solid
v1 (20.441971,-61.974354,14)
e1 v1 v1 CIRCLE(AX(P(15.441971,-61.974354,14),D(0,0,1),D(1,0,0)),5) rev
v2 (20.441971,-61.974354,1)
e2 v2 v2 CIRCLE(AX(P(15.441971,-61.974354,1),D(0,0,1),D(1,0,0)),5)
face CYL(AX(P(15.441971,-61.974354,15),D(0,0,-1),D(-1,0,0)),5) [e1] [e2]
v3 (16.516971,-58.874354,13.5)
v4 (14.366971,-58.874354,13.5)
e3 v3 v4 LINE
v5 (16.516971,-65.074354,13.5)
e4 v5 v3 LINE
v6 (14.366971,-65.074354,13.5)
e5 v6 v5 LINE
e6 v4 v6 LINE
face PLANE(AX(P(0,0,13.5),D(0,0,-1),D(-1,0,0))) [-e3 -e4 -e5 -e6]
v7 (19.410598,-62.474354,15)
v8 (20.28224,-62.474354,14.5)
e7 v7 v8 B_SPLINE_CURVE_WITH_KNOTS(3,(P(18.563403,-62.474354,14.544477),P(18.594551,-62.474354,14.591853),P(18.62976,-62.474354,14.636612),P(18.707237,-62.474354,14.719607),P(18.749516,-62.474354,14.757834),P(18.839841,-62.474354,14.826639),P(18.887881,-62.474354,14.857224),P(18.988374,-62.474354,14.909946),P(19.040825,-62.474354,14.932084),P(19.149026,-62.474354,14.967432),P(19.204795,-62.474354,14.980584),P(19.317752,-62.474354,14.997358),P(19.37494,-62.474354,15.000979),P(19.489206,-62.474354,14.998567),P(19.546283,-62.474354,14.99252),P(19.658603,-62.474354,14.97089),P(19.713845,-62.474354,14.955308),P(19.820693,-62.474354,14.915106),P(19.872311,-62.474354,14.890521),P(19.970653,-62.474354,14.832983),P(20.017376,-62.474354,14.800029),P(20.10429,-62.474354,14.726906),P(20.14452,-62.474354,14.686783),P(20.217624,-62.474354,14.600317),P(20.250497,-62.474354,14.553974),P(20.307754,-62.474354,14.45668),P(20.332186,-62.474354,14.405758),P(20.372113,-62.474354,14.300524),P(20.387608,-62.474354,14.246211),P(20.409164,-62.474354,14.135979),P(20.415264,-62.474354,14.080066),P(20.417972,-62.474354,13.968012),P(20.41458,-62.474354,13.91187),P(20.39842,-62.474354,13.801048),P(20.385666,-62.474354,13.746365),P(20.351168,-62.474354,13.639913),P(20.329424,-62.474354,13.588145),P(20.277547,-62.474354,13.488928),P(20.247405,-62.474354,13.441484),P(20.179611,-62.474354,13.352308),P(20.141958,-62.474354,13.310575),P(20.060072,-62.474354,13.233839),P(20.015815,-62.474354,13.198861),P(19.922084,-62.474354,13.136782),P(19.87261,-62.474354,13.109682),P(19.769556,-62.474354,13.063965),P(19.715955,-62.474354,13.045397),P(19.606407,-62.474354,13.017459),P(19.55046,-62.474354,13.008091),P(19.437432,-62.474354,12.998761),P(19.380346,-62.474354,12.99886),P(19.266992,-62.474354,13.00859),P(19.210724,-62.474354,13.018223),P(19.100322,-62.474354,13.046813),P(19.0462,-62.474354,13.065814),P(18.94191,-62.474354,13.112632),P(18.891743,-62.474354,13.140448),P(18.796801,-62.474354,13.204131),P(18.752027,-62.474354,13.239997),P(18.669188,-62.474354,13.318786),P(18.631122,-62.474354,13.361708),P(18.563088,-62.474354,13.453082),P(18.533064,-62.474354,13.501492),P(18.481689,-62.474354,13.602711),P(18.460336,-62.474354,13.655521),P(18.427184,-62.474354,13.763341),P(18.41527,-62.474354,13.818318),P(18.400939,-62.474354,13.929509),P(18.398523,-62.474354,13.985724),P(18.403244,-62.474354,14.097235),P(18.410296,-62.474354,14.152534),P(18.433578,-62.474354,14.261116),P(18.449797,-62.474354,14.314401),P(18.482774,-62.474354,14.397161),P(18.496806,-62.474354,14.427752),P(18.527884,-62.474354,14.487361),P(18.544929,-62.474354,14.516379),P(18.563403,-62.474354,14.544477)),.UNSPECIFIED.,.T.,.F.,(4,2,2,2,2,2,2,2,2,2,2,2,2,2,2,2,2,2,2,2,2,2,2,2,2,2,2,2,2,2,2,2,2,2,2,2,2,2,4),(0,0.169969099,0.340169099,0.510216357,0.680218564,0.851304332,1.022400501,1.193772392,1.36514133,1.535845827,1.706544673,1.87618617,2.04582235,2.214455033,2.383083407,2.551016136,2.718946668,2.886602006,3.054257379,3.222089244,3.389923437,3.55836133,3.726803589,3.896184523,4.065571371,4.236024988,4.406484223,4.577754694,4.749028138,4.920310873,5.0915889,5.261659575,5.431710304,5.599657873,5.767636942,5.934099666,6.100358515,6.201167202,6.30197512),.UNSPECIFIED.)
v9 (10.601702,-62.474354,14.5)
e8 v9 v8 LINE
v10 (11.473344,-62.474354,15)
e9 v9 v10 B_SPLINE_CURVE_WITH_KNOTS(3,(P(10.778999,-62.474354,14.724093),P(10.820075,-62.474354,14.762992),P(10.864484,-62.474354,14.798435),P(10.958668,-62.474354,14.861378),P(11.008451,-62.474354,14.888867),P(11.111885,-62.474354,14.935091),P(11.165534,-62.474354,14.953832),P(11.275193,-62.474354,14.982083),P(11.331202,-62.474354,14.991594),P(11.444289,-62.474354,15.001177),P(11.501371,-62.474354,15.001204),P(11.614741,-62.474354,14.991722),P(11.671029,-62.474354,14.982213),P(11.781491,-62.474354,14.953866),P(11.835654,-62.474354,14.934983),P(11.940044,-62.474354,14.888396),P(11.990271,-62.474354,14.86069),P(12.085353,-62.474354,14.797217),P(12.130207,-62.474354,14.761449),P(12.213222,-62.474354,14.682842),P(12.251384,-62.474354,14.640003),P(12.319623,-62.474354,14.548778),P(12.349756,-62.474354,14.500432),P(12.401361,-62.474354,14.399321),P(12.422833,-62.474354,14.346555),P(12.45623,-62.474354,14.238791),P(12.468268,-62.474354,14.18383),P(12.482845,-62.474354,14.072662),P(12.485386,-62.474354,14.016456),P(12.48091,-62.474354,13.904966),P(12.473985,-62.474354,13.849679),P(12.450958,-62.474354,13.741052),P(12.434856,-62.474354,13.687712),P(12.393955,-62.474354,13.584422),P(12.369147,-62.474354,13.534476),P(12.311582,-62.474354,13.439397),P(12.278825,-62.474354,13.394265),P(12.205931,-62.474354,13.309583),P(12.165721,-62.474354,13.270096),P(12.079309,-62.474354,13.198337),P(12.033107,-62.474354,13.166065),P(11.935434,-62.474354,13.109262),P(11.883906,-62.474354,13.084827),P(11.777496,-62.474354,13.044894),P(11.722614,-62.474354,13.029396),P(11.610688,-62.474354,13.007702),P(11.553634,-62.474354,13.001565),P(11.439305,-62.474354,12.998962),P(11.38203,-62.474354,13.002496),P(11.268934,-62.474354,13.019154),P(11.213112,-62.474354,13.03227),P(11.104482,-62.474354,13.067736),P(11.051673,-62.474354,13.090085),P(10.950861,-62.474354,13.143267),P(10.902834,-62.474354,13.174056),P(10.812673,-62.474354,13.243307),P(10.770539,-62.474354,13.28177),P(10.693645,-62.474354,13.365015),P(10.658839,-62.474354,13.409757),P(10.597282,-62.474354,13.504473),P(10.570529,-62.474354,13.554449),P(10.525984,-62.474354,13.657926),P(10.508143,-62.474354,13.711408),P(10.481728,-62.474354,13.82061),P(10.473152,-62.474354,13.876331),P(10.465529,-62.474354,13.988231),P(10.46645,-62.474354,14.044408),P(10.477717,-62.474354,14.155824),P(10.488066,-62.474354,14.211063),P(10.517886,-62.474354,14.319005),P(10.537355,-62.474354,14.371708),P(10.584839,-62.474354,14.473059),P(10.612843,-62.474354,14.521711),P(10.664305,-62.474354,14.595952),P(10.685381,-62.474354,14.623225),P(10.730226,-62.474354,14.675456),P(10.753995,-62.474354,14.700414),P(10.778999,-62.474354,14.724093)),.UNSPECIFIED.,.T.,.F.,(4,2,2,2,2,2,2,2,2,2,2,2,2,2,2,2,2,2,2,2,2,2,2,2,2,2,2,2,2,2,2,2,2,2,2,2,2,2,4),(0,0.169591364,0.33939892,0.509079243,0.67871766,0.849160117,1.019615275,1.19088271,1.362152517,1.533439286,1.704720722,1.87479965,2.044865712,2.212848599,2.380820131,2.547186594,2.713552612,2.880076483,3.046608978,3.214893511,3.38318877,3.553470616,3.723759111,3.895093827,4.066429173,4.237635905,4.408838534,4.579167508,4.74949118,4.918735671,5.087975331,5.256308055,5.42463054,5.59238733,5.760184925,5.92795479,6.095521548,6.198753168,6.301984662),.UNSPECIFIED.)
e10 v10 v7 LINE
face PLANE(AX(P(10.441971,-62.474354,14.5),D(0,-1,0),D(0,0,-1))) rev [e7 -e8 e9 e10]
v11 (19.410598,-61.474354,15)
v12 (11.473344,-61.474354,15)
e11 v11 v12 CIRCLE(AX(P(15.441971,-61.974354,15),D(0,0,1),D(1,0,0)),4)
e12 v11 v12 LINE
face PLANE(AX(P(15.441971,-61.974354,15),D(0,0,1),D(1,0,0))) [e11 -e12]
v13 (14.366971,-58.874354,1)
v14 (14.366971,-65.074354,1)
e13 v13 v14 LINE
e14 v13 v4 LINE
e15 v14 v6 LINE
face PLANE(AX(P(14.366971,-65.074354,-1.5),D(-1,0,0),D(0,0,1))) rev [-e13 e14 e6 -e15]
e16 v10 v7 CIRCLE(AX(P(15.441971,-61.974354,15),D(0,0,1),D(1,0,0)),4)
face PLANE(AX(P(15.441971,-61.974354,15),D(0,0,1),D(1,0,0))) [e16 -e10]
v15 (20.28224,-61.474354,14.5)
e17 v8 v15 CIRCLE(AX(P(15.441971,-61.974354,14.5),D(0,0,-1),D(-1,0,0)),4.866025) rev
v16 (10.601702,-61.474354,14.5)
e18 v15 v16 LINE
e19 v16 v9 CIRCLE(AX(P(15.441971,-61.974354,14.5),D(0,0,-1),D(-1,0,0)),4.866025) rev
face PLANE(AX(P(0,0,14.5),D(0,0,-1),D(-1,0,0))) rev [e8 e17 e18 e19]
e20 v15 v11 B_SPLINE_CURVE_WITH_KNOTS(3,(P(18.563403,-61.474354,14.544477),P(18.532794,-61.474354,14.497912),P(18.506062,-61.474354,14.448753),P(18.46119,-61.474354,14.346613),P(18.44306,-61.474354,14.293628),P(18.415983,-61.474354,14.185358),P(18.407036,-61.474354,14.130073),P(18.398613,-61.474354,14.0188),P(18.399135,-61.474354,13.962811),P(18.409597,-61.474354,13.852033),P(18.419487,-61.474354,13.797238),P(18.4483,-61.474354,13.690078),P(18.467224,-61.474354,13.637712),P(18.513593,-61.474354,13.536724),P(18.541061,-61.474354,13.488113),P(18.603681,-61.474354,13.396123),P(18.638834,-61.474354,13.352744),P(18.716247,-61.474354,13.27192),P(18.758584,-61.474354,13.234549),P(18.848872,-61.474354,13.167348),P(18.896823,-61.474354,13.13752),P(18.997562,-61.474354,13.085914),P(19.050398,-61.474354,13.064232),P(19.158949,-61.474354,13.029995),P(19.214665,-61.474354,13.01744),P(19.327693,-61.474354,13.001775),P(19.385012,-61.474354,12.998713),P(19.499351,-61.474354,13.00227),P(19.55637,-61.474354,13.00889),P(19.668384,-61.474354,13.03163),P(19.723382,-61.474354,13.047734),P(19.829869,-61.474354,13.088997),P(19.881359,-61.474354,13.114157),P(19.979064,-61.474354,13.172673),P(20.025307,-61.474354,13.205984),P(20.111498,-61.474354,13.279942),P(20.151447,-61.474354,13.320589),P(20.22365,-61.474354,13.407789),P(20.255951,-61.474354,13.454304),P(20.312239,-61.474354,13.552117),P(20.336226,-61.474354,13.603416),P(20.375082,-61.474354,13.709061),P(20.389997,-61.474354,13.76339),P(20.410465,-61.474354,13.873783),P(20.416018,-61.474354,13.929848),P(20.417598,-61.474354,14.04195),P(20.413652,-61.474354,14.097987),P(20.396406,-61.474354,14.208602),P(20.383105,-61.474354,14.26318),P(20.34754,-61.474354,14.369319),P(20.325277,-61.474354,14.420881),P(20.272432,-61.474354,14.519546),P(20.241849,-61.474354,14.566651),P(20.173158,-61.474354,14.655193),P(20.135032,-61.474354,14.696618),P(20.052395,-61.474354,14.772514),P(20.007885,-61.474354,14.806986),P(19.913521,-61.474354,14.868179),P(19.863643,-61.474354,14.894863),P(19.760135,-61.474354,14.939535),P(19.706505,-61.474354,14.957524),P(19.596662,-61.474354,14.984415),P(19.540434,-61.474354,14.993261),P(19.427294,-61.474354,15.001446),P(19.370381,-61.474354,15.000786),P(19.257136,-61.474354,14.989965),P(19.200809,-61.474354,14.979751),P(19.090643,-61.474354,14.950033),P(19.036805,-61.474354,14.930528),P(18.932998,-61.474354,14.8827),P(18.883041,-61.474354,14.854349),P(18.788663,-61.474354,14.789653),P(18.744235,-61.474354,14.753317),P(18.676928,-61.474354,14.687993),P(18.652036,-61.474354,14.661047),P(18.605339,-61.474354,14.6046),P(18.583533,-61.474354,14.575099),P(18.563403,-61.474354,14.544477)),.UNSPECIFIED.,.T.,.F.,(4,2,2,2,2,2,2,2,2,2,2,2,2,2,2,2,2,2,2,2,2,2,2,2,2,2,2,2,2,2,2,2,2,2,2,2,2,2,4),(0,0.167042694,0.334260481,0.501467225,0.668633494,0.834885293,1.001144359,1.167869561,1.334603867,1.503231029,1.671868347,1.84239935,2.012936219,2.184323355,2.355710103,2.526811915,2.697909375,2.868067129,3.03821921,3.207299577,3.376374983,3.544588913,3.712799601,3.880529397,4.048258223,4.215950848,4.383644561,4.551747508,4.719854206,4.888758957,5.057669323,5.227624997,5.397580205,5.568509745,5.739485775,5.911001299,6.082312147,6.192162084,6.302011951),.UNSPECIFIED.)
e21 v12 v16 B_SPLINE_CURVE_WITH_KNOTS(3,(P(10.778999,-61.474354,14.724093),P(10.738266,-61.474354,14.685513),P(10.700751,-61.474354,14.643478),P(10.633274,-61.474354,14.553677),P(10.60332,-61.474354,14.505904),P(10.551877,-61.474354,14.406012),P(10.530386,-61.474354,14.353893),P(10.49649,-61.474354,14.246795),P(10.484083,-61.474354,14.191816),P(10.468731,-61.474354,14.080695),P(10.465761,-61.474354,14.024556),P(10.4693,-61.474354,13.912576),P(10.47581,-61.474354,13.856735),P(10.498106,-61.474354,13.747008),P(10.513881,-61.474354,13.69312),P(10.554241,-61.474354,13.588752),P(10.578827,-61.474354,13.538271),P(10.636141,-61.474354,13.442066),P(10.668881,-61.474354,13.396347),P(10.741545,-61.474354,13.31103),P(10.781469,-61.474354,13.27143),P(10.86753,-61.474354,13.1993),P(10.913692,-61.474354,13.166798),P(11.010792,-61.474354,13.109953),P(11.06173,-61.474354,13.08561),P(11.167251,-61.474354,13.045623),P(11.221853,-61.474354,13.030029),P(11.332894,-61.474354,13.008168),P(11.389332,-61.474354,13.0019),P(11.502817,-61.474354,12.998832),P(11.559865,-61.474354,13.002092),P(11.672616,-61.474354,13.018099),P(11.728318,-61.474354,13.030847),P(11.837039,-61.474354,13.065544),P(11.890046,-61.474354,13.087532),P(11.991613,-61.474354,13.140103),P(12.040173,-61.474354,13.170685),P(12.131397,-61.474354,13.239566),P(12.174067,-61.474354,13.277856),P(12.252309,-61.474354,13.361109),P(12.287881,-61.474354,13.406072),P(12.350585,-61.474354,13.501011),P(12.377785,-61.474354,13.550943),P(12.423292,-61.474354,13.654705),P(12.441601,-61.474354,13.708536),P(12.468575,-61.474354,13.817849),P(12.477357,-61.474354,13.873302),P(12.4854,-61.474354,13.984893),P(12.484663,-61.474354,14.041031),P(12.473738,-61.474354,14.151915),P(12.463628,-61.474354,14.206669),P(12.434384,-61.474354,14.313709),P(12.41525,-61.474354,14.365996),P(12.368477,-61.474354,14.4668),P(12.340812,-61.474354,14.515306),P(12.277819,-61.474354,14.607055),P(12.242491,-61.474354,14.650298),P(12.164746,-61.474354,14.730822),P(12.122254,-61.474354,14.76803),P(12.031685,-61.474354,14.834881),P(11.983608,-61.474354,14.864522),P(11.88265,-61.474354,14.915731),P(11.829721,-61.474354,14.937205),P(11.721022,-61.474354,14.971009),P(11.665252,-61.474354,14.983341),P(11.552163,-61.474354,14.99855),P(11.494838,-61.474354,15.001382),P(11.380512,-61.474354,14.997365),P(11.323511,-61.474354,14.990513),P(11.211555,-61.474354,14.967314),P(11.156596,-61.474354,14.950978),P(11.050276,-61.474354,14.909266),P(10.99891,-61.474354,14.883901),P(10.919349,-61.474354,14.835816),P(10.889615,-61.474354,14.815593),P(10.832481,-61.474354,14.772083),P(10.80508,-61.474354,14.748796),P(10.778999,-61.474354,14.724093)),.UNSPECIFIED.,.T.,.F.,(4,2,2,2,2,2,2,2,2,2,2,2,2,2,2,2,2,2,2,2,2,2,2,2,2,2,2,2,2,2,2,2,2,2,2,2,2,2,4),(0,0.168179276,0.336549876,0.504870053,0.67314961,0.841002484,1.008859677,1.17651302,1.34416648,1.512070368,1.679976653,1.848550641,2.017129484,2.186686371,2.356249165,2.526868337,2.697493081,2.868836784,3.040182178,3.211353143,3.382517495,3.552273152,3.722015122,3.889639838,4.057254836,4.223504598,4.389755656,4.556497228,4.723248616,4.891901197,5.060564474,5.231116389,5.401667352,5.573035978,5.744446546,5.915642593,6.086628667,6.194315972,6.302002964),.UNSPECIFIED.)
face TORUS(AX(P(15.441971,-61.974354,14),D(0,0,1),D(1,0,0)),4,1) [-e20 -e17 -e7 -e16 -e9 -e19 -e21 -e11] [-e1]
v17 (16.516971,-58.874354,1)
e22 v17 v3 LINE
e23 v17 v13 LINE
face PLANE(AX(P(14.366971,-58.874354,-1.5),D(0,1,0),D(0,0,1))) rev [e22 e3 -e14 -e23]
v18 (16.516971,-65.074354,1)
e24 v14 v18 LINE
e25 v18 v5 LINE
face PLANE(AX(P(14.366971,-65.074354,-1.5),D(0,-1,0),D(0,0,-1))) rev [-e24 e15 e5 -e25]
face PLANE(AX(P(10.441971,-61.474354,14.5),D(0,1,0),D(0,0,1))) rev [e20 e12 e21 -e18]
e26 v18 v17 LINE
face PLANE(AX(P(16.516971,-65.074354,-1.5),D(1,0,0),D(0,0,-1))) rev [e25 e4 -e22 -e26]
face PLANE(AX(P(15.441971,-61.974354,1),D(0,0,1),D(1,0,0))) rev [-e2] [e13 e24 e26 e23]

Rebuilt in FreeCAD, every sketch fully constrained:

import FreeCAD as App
import Part
import Sketcher

V = App.Vector


def edges_at(feature, points):
    """Names of the edges that pass closest to the given points."""
    edges = feature.Shape.Edges
    near = lambda p: min(range(len(edges)), key=lambda i: edges[i].distToShape(Part.Vertex(*p))[0])
    return sorted({f"Edge{near(p) + 1}" for p in points})


def add_polygon(sketch, points):
    """Adds a closed chain of lines whose ends are joined by coincident constraints."""
    first, n = sketch.GeometryCount, len(points)
    for a, b in zip(points, points[1:] + points[:1]):
        sketch.addGeometry(Part.LineSegment(App.Vector(*a, 0), App.Vector(*b, 0)), False)
    for i in range(n):
        sketch.addConstraint(Sketcher.Constraint("Coincident", first + i, 2, first + (i + 1) % n, 1))

doc = App.newDocument("Part")
params = doc.addObject("Spreadsheet::Sheet", "Params")
for row, (alias, value) in enumerate([
    ("sketch1_diameter", "10 mm"),
    ("pad1_length", "14 mm"),
    ("sketch2_height", "6.2 mm"),
    ("sketch2_width", "2.15 mm"),
    ("pocket1_length", "15 mm"),
    ("fillet_radius", "1 mm"),
    ("sketch3_width", "10 mm"),
    ("sketch3_height", "1 mm"),
    ("pocket2_length", "0.5 mm"),
], start=1):
    params.set(f"A{row}", alias)
    params.set(f"B{row}", "=" + value)
    params.setAlias(f"B{row}", alias)

body = doc.addObject("PartDesign::Body", "Body")

sketch1 = doc.addObject("Sketcher::SketchObject", "Sketch")
body.addObject(sketch1)
sketch1.AttachmentSupport = (doc.XY_Plane, [""])
sketch1.MapMode = "FlatFace"
sketch1.AttachmentOffset = App.Placement(V(0, 0, 1), App.Rotation())
sketch1.addGeometry(Part.Circle(V(15, -62, 0), V(0, 0, 1), 5), False)
sketch1.addConstraint([
    Sketcher.Constraint("Diameter", 0, 10.0),
    Sketcher.Constraint("DistanceX", -1, 1, 0, 3, 15.441971),
    Sketcher.Constraint("DistanceY", 0, 3, -1, 1, 61.974354),
])
sketch1.setExpression("Constraints[0]", "Params.sketch1_diameter")
pad1 = doc.addObject("PartDesign::Pad", "Pad")
body.addObject(pad1)
pad1.Profile = sketch1
pad1.setExpression("Length", "Params.pad1_length")

sketch2 = doc.addObject("Sketcher::SketchObject", "Sketch001")
body.addObject(sketch2)
sketch2.AttachmentSupport = (doc.XY_Plane, [""])
sketch2.MapMode = "FlatFace"
sketch2.AttachmentOffset = App.Placement(V(0, 0, 13.5), App.Rotation())
add_polygon(sketch2, [(14.4, -58.9), (14.4, -65.1), (16.5, -65.1), (16.5, -58.9)])
sketch2.addConstraint([
    Sketcher.Constraint("Vertical", 0),
    Sketcher.Constraint("Horizontal", 1),
    Sketcher.Constraint("Vertical", 2),
    Sketcher.Constraint("Horizontal", 3),
    Sketcher.Constraint("DistanceY", 0, 2, 0, 1, 6.2),
    Sketcher.Constraint("DistanceX", 1, 1, 1, 2, 2.15),
    Sketcher.Constraint("DistanceX", -1, 1, 0, 2, 14.366971),
    Sketcher.Constraint("DistanceY", 0, 2, -1, 1, 65.074354),
])
sketch2.setExpression("Constraints[8]", "Params.sketch2_height")
sketch2.setExpression("Constraints[9]", "Params.sketch2_width")
pocket1 = doc.addObject("PartDesign::Pocket", "Pocket")
body.addObject(pocket1)
pocket1.Profile = sketch2
pocket1.setExpression("Length", "Params.pocket1_length")
doc.recompute()

fillet = doc.addObject("PartDesign::Fillet", "Fillet")
body.addObject(fillet)
fillet.Base = (pocket1, edges_at(pocket1, [(10.442, -61.974, 15)]))
fillet.setExpression("Radius", "Params.fillet_radius")

sketch3 = doc.addObject("Sketcher::SketchObject", "Sketch002")
body.addObject(sketch3)
sketch3.AttachmentSupport = (doc.XY_Plane, [""])
sketch3.MapMode = "FlatFace"
sketch3.AttachmentOffset = App.Placement(V(0, 0, 15), App.Rotation())
add_polygon(sketch3, [(10.4, -61.5), (10.4, -62.5), (20.4, -62.5), (20.4, -61.5)])
sketch3.addConstraint([
    Sketcher.Constraint("Vertical", 0),
    Sketcher.Constraint("Horizontal", 1),
    Sketcher.Constraint("Vertical", 2),
    Sketcher.Constraint("Horizontal", 3),
    Sketcher.Constraint("DistanceX", 1, 1, 1, 2, 10.0),
    Sketcher.Constraint("DistanceY", 0, 2, 0, 1, 1.0),
    Sketcher.Constraint("DistanceX", -1, 1, 0, 2, 10.441971),
    Sketcher.Constraint("DistanceY", 0, 2, -1, 1, 62.474354),
])
sketch3.setExpression("Constraints[8]", "Params.sketch3_width")
sketch3.setExpression("Constraints[9]", "Params.sketch3_height")
pocket2 = doc.addObject("PartDesign::Pocket", "Pocket001")
body.addObject(pocket2)
pocket2.Profile = sketch3
pocket2.setExpression("Length", "Params.pocket2_length")

doc.recompute()
